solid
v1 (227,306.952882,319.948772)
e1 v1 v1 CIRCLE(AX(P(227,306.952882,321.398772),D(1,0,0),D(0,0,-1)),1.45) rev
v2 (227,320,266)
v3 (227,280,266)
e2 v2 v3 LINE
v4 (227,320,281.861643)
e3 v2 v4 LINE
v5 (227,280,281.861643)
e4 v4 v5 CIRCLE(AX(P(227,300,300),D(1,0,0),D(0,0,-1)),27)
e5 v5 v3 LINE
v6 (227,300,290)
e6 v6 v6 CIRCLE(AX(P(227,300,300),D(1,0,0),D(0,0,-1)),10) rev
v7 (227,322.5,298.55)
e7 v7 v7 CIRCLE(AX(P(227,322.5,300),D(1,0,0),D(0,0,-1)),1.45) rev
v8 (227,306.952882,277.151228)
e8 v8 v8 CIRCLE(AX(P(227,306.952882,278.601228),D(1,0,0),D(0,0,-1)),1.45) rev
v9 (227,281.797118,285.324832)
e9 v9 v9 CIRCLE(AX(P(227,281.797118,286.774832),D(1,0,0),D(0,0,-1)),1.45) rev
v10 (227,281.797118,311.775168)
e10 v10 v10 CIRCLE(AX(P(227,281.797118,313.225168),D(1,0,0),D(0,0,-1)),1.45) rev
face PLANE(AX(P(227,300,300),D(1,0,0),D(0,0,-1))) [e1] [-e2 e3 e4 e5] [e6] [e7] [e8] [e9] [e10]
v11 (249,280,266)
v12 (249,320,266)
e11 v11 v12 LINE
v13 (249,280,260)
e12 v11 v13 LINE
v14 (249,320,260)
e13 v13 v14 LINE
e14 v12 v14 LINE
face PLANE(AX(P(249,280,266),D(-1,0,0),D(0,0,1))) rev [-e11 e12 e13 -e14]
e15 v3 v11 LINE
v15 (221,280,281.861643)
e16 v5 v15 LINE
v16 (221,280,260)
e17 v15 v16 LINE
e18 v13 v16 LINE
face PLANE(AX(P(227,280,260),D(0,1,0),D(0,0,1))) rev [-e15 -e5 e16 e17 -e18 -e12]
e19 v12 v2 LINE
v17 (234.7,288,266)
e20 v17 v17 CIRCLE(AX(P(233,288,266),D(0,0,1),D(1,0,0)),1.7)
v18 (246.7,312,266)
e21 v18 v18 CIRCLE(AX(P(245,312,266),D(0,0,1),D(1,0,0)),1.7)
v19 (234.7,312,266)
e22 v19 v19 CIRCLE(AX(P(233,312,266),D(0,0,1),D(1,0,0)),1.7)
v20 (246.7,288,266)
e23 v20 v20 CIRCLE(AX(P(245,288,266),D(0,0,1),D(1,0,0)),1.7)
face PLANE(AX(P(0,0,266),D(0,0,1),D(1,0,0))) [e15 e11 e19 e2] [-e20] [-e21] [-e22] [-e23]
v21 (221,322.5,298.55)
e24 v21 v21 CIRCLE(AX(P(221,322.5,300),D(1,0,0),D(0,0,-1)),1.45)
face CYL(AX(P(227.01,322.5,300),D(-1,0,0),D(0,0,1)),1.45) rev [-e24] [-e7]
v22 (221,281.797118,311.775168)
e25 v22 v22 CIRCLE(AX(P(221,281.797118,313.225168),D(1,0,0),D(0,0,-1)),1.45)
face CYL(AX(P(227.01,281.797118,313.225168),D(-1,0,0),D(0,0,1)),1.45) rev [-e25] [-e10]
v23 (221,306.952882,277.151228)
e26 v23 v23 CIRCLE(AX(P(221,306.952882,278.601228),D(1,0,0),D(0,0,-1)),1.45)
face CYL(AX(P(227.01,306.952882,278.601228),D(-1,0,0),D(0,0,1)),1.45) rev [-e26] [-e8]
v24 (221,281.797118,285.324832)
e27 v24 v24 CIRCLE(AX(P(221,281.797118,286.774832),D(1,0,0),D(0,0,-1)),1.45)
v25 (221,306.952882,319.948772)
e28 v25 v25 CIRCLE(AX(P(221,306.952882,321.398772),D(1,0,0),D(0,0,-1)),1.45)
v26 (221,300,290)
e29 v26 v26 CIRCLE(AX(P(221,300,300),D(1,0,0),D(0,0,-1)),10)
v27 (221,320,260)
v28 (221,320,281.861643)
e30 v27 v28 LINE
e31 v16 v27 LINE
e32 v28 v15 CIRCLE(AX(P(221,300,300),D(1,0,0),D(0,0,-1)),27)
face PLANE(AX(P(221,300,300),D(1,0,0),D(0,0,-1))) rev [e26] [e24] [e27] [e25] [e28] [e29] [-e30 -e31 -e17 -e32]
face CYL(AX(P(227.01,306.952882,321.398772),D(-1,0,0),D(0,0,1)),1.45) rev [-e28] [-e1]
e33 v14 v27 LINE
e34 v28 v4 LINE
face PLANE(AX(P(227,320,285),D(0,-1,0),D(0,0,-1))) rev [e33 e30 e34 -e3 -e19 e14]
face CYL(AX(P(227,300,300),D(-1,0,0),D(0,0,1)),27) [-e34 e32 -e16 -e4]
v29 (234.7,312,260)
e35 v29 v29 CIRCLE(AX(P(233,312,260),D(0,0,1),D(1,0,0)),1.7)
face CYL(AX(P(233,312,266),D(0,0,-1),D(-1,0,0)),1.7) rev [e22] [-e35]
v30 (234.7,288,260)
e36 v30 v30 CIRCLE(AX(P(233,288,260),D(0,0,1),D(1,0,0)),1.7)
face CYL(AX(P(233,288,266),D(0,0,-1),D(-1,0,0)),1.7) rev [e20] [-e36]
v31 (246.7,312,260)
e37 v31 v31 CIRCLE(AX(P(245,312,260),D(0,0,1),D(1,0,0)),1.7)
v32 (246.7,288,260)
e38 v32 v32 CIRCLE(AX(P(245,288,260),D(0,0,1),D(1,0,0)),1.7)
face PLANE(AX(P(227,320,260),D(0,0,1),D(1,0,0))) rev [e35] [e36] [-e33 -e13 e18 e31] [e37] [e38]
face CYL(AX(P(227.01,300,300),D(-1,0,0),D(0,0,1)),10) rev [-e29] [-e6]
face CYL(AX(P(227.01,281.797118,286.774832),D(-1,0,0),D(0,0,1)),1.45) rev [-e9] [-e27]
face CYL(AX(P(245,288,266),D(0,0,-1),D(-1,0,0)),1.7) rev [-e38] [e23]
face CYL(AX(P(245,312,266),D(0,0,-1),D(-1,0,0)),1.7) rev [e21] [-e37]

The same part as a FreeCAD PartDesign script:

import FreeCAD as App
import Part
import Sketcher
Q = App.Units.Quantity


def add_polygon(sketch, points):
    """Adds a closed chain of lines whose ends are joined by coincident constraints."""
    first, n = sketch.GeometryCount, len(points)
    for a, b in zip(points, points[1:] + points[:1]):
        sketch.addGeometry(Part.LineSegment(App.Vector(*a, 0), App.Vector(*b, 0)), False)
    for i in range(n):
        sketch.addConstraint(Sketcher.Constraint("Coincident", first + i, 2, first + (i + 1) % n, 1))

doc = App.newDocument("Part")
params = doc.addObject("Spreadsheet::Sheet", "Params")
for row, (alias, value) in enumerate([
    ("sketch1_diameter", "54 mm"),
    ("pad1_length", "6 mm"),
    ("sketch2_width", "40 mm"),
    ("sketch2_height", "25 mm"),
    ("pad2_length", "6 mm"),
    ("sketch3_diameter", "20 mm"),
    ("sketch3_diameter2", "2.9 mm"),
    ("pocket1_length", "6.01 mm"),
    ("sketch4_diameter", "3.4 mm"),
    ("sketch4_height", "40 mm"),
    ("sketch4_width", "22.01 mm"),
    ("pad3_length", "6 mm"),
], start=1):
    params.set(f"A{row}", alias)
    params.set(f"B{row}", "=" + value)
    params.setAlias(f"B{row}", alias)

body = doc.addObject("PartDesign::Body", "Body")

# Sketch on YZ plane
sketch1 = body.newObject("Sketcher::SketchObject", "Sketch")
sketch1.AttachmentSupport = (doc.getObject("YZ_Plane"), [""])
sketch1.MapMode = "FlatFace"
sketch1.AttachmentOffset = App.Placement(App.Vector(0, 0, 221), App.Rotation())
sketch1.addGeometry(Part.Circle(App.Vector(300, 300, 0), App.Vector(0, 0, 1), 27), False)
sketch1.addConstraint([
    Sketcher.Constraint("Diameter", 0, Q("54 mm")),
    Sketcher.Constraint("DistanceX", -1, 1, 0, 3, Q("300 mm")),
    Sketcher.Constraint("DistanceY", -1, 1, 0, 3, Q("300 mm")),
])
sketch1.setExpression("Constraints[0]", "Params.sketch1_diameter")
pad1 = body.newObject("PartDesign::Pad", "Pad")
pad1.Profile = sketch1
pad1.setExpression("Length", "Params.pad1_length")

# Sketch on YZ plane
sketch2 = body.newObject("Sketcher::SketchObject", "Sketch001")
sketch2.AttachmentSupport = (doc.getObject("YZ_Plane"), [""])
sketch2.MapMode = "FlatFace"
sketch2.AttachmentOffset = App.Placement(App.Vector(0, 0, 221), App.Rotation())
add_polygon(sketch2, [(320, 285), (280, 285), (280, 260), (320, 260)])  # lines 0-3
sketch2.addConstraint([
    Sketcher.Constraint("Horizontal", 0),
    Sketcher.Constraint("Vertical", 1),
    Sketcher.Constraint("Horizontal", 2),
    Sketcher.Constraint("Vertical", 3),
    Sketcher.Constraint("DistanceX", 0, 2, 0, 1, Q("40 mm")),
    Sketcher.Constraint("DistanceY", 1, 2, 1, 1, Q("25 mm")),
    Sketcher.Constraint("DistanceX", -1, 1, 0, 2, Q("280 mm")),
    Sketcher.Constraint("DistanceY", -1, 1, 0, 2, Q("285 mm")),
])
sketch2.setExpression("Constraints[8]", "Params.sketch2_width")
sketch2.setExpression("Constraints[9]", "Params.sketch2_height")
pad2 = body.newObject("PartDesign::Pad", "Pad001")
pad2.Profile = sketch2
pad2.setExpression("Length", "Params.pad2_length")

# Sketch on YZ plane
sketch3 = body.newObject("Sketcher::SketchObject", "Sketch002")
sketch3.AttachmentSupport = (doc.getObject("YZ_Plane"), [""])
sketch3.MapMode = "FlatFace"
sketch3.AttachmentOffset = App.Placement(App.Vector(0, 0, 221), App.Rotation())
sketch3.addGeometry([
    Part.Circle(App.Vector(300, 300, 0), App.Vector(0, 0, 1), 10),  # 0
    Part.Circle(App.Vector(322.5, 300, 0), App.Vector(0, 0, 1), 1.4),  # 1
    Part.Circle(App.Vector(307, 278.6, 0), App.Vector(0, 0, 1), 1.4),  # 2
    Part.Circle(App.Vector(281.8, 286.8, 0), App.Vector(0, 0, 1), 1.4),  # 3
    Part.Circle(App.Vector(281.8, 313.2, 0), App.Vector(0, 0, 1), 1.4),  # 4
    Part.Circle(App.Vector(307, 321.4, 0), App.Vector(0, 0, 1), 1.4),  # 5
], False)
sketch3.addConstraint([
    Sketcher.Constraint("Equal", 1, 2),
    Sketcher.Constraint("Equal", 2, 3),
    Sketcher.Constraint("Equal", 3, 4),
    Sketcher.Constraint("Equal", 4, 5),
    Sketcher.Constraint("Horizontal", 0, 3, 1, 3),
    Sketcher.Constraint("Vertical", 3, 3, 4, 3),
    Sketcher.Constraint("Vertical", 2, 3, 5, 3),
    Sketcher.Constraint("Diameter", 0, Q("20 mm")),
    Sketcher.Constraint("Diameter", 1, Q("2.9 mm")),
    Sketcher.Constraint("DistanceX", -1, 1, 0, 3, Q("300 mm")),
    Sketcher.Constraint("DistanceY", -1, 1, 0, 3, Q("300 mm")),
    Sketcher.Constraint("DistanceX", -1, 1, 1, 3, Q("322.5 mm")),
    Sketcher.Constraint("DistanceY", -1, 1, 2, 3, Q("278.601228 mm")),
    Sketcher.Constraint("DistanceY", -1, 1, 3, 3, Q("286.774832 mm")),
    Sketcher.Constraint("DistanceY", -1, 1, 4, 3, Q("313.225168 mm")),
    Sketcher.Constraint("DistanceY", -1, 1, 5, 3, Q("321.398772 mm")),
    Sketcher.Constraint("DistanceX", -1, 1, 2, 3, Q("306.952882 mm")),
    Sketcher.Constraint("DistanceX", -1, 1, 3, 3, Q("281.797118 mm")),
])
sketch3.setExpression("Constraints[7]", "Params.sketch3_diameter")
sketch3.setExpression("Constraints[8]", "Params.sketch3_diameter2")
pocket1 = body.newObject("PartDesign::Pocket", "Pocket")
pocket1.Profile = sketch3
pocket1.setExpression("Length", "Params.pocket1_length")
pocket1.Reversed = True

# Sketch on XY plane
sketch4 = body.newObject("Sketcher::SketchObject", "Sketch003")
sketch4.AttachmentSupport = (doc.getObject("XY_Plane"), [""])
sketch4.MapMode = "FlatFace"
sketch4.AttachmentOffset = App.Placement(App.Vector(0, 0, 260), App.Rotation())
add_polygon(sketch4, [(227, 320), (227, 280), (249, 280), (249, 320)])  # lines 0-3
sketch4.addGeometry(Part.Circle(App.Vector(233, 288, 0), App.Vector(0, 0, 1), 1.7), False)  # 4
sketch4.addGeometry(Part.Circle(App.Vector(245, 288, 0), App.Vector(0, 0, 1), 1.7), False)  # 5
sketch4.addGeometry(Part.Circle(App.Vector(233, 312, 0), App.Vector(0, 0, 1), 1.7), False)  # 6
sketch4.addGeometry(Part.Circle(App.Vector(245, 312, 0), App.Vector(0, 0, 1), 1.7), False)  # 7
sketch4.addConstraint([
    Sketcher.Constraint("Vertical", 0),
    Sketcher.Constraint("Horizontal", 1),
    Sketcher.Constraint("Vertical", 2),
    Sketcher.Constraint("Horizontal", 3),
    Sketcher.Constraint("Equal", 4, 5),
    Sketcher.Constraint("Equal", 5, 6),
    Sketcher.Constraint("Equal", 6, 7),
    Sketcher.Constraint("Horizontal", 4, 3, 5, 3),
    Sketcher.Constraint("Horizontal", 6, 3, 7, 3),
    Sketcher.Constraint("Vertical", 4, 3, 6, 3),
    Sketcher.Constraint("Vertical", 5, 3, 7, 3),
    Sketcher.Constraint("Diameter", 4, Q("3.4 mm")),
    Sketcher.Constraint("DistanceY", 0, 2, 0, 1, Q("40 mm")),
    Sketcher.Constraint("DistanceX", -1, 1, 4, 3, Q("233 mm")),
    Sketcher.Constraint("DistanceY", -1, 1, 4, 3, Q("288 mm")),
    Sketcher.Constraint("DistanceX", -1, 1, 5, 3, Q("245 mm")),
    Sketcher.Constraint("DistanceY", -1, 1, 6, 3, Q("312 mm")),
    Sketcher.Constraint("DistanceY", -1, 1, 0, 2, Q("280 mm")),
    Sketcher.Constraint("DistanceX", -1, 1, 1, 2, Q("249 mm")),
    Sketcher.Constraint("DistanceX", 1, 1, 1, 2, Q("22.01 mm")),
])
sketch4.setExpression("Constraints[15]", "Params.sketch4_diameter")
sketch4.setExpression("Constraints[16]", "Params.sketch4_height")
sketch4.setExpression("Constraints[23]", "Params.sketch4_width")
pad3 = body.newObject("PartDesign::Pad", "Pad002")
pad3.Profile = sketch4
pad3.setExpression("Length", "Params.pad3_length")

doc.recompute()
